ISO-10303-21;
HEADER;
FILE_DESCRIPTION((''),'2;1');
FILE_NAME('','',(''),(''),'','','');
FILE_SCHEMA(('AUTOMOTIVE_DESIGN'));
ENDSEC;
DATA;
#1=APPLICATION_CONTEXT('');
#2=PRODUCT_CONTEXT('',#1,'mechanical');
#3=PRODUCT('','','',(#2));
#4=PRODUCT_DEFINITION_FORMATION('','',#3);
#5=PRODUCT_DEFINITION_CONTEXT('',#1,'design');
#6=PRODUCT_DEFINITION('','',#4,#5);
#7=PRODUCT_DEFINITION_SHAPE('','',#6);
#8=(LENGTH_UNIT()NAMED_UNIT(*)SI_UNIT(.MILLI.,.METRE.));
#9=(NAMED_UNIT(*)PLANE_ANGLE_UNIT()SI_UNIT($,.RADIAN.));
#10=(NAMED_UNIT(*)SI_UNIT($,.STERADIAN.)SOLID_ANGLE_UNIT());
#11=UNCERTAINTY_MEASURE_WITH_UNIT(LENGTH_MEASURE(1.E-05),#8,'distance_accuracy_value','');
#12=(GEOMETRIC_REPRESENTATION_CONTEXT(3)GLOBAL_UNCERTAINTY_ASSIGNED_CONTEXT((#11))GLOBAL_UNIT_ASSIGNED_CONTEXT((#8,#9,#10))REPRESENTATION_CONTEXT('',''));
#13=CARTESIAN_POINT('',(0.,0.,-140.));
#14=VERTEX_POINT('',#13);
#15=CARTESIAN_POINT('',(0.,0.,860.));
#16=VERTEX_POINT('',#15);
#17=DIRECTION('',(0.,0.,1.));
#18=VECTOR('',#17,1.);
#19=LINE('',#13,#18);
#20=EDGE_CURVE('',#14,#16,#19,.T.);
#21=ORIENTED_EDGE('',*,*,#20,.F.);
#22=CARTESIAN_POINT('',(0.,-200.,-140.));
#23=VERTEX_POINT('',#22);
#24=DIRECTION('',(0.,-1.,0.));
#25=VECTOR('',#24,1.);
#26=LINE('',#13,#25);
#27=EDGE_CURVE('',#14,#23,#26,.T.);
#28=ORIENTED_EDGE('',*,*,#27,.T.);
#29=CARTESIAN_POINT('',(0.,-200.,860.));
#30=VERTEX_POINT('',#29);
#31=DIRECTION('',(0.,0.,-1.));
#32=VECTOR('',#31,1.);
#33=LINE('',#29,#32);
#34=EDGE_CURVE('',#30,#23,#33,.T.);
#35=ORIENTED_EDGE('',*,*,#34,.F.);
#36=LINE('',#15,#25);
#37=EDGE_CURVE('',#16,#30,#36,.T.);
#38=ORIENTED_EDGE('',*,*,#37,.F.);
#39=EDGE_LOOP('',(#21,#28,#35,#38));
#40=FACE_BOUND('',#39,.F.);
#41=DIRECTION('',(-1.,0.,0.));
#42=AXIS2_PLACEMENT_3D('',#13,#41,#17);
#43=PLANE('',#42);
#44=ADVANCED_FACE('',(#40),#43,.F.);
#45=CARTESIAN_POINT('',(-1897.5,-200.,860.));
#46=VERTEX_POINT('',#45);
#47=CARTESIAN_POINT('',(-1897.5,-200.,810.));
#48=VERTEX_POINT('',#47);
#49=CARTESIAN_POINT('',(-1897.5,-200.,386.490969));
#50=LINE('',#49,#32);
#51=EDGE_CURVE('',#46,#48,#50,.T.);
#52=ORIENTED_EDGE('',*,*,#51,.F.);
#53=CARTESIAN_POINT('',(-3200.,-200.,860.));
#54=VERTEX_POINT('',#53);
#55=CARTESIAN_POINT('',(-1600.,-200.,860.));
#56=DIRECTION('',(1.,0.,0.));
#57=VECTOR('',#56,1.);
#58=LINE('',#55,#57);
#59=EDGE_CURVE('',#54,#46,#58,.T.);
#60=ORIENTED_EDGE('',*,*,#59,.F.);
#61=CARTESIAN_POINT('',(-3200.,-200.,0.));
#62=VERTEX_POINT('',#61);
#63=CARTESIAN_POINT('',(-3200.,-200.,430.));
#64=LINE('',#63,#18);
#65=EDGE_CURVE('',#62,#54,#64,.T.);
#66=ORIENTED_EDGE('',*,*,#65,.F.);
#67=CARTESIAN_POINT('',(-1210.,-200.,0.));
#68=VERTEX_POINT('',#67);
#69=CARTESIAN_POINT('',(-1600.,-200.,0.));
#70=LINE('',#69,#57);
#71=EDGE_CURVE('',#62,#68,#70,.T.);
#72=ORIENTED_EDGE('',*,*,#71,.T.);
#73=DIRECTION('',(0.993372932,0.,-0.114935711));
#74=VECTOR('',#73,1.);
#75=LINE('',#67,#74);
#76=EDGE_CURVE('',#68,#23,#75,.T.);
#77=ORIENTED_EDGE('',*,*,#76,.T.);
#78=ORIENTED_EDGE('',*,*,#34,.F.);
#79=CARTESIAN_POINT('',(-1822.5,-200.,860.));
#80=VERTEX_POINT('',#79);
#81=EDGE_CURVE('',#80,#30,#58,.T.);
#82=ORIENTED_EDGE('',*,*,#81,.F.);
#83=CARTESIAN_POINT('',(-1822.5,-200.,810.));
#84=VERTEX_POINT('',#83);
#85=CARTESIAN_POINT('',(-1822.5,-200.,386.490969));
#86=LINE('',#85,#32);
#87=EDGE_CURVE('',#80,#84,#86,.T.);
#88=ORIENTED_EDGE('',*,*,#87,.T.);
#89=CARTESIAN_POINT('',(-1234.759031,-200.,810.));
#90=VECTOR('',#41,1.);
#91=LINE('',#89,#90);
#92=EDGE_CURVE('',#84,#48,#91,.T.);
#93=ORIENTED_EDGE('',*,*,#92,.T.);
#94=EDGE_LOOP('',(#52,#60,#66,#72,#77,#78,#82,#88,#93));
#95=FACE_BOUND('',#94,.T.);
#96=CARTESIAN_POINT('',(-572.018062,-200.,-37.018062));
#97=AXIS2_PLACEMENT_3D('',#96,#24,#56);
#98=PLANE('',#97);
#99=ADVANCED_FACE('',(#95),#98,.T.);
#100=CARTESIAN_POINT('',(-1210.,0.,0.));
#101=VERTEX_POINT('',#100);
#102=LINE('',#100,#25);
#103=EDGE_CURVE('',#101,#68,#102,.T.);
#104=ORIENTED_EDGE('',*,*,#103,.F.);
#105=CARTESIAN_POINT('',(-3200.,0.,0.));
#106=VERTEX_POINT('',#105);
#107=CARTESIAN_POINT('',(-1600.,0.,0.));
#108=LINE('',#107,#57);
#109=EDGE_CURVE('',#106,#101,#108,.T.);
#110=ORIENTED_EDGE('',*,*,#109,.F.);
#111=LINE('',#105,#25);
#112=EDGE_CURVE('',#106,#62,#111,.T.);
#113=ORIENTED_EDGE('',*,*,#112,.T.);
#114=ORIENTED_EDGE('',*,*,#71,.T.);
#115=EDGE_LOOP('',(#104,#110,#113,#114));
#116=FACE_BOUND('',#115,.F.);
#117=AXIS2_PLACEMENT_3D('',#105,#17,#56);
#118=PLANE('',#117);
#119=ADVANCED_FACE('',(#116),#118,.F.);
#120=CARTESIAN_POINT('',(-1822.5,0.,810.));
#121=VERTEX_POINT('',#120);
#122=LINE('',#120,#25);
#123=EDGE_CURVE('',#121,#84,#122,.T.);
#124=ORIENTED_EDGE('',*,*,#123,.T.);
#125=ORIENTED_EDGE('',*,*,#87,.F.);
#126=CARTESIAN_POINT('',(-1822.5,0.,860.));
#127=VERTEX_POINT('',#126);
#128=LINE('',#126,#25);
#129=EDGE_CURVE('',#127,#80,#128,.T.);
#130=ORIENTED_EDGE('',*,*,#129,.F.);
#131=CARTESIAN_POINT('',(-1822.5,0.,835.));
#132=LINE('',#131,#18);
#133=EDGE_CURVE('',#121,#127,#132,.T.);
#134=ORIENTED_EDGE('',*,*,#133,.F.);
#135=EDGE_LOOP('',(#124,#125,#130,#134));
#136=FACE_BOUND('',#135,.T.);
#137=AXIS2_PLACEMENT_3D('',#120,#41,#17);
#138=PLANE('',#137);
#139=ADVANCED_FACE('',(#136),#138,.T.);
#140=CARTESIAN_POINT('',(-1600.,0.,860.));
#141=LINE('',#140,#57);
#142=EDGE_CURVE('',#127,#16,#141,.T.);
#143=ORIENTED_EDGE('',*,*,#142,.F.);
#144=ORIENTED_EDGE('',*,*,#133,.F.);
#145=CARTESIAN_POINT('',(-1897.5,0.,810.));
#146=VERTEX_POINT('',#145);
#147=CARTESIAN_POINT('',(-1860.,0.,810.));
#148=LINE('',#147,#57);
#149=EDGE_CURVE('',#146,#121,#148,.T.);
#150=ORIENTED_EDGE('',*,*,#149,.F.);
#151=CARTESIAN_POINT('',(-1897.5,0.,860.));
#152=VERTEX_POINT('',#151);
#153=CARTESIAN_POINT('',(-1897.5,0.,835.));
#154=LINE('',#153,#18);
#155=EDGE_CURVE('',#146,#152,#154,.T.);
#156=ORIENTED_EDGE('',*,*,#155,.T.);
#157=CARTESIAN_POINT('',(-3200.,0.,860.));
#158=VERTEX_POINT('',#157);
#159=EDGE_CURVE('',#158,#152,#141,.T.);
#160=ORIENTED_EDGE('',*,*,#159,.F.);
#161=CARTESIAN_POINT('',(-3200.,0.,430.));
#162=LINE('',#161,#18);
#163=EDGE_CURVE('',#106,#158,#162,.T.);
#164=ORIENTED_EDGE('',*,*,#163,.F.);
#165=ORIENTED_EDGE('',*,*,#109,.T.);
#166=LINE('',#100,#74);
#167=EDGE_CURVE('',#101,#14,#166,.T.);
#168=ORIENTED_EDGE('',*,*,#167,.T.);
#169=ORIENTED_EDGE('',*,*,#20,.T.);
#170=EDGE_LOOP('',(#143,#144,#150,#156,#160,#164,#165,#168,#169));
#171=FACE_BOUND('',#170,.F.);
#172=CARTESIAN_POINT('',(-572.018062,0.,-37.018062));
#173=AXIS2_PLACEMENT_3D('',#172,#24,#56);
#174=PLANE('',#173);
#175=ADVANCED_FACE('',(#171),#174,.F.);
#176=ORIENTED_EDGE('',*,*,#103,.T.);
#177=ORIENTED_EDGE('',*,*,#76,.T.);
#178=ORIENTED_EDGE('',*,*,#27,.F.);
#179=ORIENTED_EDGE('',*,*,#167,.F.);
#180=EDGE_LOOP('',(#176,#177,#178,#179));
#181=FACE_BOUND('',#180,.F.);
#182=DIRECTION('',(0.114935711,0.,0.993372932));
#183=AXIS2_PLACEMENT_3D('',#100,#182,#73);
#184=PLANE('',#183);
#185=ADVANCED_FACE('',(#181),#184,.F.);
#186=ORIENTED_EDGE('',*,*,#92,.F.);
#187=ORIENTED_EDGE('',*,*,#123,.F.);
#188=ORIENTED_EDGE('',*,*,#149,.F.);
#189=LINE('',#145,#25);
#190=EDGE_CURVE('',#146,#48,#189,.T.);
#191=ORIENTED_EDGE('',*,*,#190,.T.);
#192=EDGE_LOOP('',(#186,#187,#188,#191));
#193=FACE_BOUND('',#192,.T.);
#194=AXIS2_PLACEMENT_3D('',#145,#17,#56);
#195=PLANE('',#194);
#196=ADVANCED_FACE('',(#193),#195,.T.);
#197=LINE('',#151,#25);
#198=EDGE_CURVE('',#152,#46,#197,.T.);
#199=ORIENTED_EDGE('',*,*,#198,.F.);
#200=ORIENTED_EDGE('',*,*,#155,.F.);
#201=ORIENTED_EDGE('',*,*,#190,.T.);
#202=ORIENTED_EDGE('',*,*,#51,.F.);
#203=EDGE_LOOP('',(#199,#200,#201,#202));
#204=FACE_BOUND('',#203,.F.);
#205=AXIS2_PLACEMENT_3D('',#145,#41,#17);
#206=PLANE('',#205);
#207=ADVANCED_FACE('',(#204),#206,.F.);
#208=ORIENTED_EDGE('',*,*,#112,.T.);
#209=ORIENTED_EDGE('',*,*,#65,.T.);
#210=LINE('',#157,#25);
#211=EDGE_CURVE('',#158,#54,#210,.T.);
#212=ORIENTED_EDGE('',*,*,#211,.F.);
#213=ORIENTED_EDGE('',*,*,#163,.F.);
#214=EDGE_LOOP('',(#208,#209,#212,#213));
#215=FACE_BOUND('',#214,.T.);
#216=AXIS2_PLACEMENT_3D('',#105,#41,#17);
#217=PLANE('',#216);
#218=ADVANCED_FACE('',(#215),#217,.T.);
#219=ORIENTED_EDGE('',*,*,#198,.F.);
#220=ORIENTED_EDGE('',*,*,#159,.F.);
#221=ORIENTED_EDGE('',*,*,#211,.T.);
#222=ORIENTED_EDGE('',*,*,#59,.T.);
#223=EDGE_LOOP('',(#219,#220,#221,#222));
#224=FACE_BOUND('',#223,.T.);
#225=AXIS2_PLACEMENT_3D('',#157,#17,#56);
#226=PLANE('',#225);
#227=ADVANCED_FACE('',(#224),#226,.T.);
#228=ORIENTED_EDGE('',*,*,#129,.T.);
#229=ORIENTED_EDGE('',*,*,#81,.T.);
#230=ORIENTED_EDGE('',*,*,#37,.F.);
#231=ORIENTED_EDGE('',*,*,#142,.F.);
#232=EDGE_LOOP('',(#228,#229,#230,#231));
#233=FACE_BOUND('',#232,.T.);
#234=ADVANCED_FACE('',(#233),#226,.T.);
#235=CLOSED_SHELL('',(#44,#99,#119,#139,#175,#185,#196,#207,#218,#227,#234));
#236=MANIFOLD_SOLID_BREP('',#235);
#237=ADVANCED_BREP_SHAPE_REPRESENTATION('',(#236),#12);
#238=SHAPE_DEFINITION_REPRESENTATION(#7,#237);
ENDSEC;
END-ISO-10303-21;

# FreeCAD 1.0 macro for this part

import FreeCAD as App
import Part
import Sketcher

V = App.Vector

doc = App.newDocument("Part")
body = doc.addObject("PartDesign::Body", "Body")

sketch1 = body.newObject("Sketcher::SketchObject", "Sketch")
sketch1.AttachmentSupport = (doc.getObject("XZ_Plane"), [""])
sketch1.MapMode = "FlatFace"
sketch1.addGeometry(Part.LineSegment(V(-3200, 860, 0), V(-3200, 0, 0)), False)
sketch1.addGeometry(Part.LineSegment(V(-3200, 0, 0), V(0, 0, 0)), False)
sketch1.addGeometry(Part.LineSegment(V(0, 0, 0), V(0, 860, 0)), False)
sketch1.addGeometry(Part.LineSegment(V(0, 860, 0), V(-3200, 860, 0)), False)
sketch1.addConstraint(Sketcher.Constraint("Coincident", 0, 2, 1, 1))
sketch1.addConstraint(Sketcher.Constraint("Coincident", 1, 2, 2, 1))
sketch1.addConstraint(Sketcher.Constraint("Coincident", 2, 2, 3, 1))
sketch1.addConstraint(Sketcher.Constraint("Coincident", 3, 2, 0, 1))
sketch1.addConstraint(Sketcher.Constraint("Vertical", 0))
sketch1.addConstraint(Sketcher.Constraint("Horizontal", 1))
sketch1.addConstraint(Sketcher.Constraint("Vertical", 2))
sketch1.addConstraint(Sketcher.Constraint("Horizontal", 3))
sketch1.addConstraint(Sketcher.Constraint("Coincident", 1, 2, -1, 1))
sketch1.addConstraint(Sketcher.Constraint("DistanceX", 1, 1, 1, 2, 3200.0))
sketch1.addConstraint(Sketcher.Constraint("DistanceY", 0, 2, 0, 1, 860.0))
pad1 = body.newObject("PartDesign::Pad", "Pad")
pad1.Profile = sketch1
pad1.Length = 200

sketch2 = body.newObject("Sketcher::SketchObject", "Sketch001")
sketch2.AttachmentSupport = (doc.getObject("XZ_Plane"), [""])
sketch2.MapMode = "FlatFace"
sketch2.addGeometry(Part.LineSegment(V(0, -140, 0), V(0, 0, 0)), False)
sketch2.addGeometry(Part.LineSegment(V(0, 0, 0), V(-1210, 0, 0)), False)
sketch2.addGeometry(Part.LineSegment(V(-1210, 0, 0), V(0, -140, 0)), False)
sketch2.addConstraint(Sketcher.Constraint("Coincident", 0, 2, 1, 1))
sketch2.addConstraint(Sketcher.Constraint("Coincident", 1, 2, 2, 1))
sketch2.addConstraint(Sketcher.Constraint("Coincident", 2, 2, 0, 1))
sketch2.addConstraint(Sketcher.Constraint("Vertical", 0))
sketch2.addConstraint(Sketcher.Constraint("Horizontal", 1))
sketch2.addConstraint(Sketcher.Constraint("Coincident", 0, 2, -1, 1))
sketch2.addConstraint(Sketcher.Constraint("DistanceX", 1, 2, 1, 1, 1210.0))
sketch2.addConstraint(Sketcher.Constraint("DistanceY", 0, 1, 0, 2, 140.0))
pad2 = body.newObject("PartDesign::Pad", "Pad001")
pad2.Profile = sketch2
pad2.Length = 200

sketch3 = body.newObject("Sketcher::SketchObject", "Sketch002")
sketch3.AttachmentSupport = (doc.getObject("XZ_Plane"), [""])
sketch3.MapMode = "FlatFace"
sketch3.addGeometry(Part.LineSegment(V(-1897.5, 860, 0), V(-1897.5, 810, 0)), False)
sketch3.addGeometry(Part.LineSegment(V(-1897.5, 810, 0), V(-1822.5, 810, 0)), False)
sketch3.addGeometry(Part.LineSegment(V(-1822.5, 810, 0), V(-1822.5, 860, 0)), False)
sketch3.addGeometry(Part.LineSegment(V(-1822.5, 860, 0), V(-1897.5, 860, 0)), False)
sketch3.addConstraint(Sketcher.Constraint("Coincident", 0, 2, 1, 1))
sketch3.addConstraint(Sketcher.Constraint("Coincident", 1, 2, 2, 1))
sketch3.addConstraint(Sketcher.Constraint("Coincident", 2, 2, 3, 1))
sketch3.addConstraint(Sketcher.Constraint("Coincident", 3, 2, 0, 1))
sketch3.addConstraint(Sketcher.Constraint("Vertical", 0))
sketch3.addConstraint(Sketcher.Constraint("Horizontal", 1))
sketch3.addConstraint(Sketcher.Constraint("Vertical", 2))
sketch3.addConstraint(Sketcher.Constraint("Horizontal", 3))
sketch3.addConstraint(Sketcher.Constraint("DistanceX", 1, 1, 1, 2, 75.0))
sketch3.addConstraint(Sketcher.Constraint("DistanceY", 0, 2, 0, 1, 50.0))
sketch3.addConstraint(Sketcher.Constraint("DistanceY", -1, 1, 0, 2, 810.0))
sketch3.addConstraint(Sketcher.Constraint("DistanceX", 0, 2, -1, 1, 1897.5))
pocket1 = body.newObject("PartDesign::Pocket", "Pocket")
pocket1.Profile = sketch3
pocket1.Type = "ThroughAll"
pocket1.Reversed = True

doc.recompute()
